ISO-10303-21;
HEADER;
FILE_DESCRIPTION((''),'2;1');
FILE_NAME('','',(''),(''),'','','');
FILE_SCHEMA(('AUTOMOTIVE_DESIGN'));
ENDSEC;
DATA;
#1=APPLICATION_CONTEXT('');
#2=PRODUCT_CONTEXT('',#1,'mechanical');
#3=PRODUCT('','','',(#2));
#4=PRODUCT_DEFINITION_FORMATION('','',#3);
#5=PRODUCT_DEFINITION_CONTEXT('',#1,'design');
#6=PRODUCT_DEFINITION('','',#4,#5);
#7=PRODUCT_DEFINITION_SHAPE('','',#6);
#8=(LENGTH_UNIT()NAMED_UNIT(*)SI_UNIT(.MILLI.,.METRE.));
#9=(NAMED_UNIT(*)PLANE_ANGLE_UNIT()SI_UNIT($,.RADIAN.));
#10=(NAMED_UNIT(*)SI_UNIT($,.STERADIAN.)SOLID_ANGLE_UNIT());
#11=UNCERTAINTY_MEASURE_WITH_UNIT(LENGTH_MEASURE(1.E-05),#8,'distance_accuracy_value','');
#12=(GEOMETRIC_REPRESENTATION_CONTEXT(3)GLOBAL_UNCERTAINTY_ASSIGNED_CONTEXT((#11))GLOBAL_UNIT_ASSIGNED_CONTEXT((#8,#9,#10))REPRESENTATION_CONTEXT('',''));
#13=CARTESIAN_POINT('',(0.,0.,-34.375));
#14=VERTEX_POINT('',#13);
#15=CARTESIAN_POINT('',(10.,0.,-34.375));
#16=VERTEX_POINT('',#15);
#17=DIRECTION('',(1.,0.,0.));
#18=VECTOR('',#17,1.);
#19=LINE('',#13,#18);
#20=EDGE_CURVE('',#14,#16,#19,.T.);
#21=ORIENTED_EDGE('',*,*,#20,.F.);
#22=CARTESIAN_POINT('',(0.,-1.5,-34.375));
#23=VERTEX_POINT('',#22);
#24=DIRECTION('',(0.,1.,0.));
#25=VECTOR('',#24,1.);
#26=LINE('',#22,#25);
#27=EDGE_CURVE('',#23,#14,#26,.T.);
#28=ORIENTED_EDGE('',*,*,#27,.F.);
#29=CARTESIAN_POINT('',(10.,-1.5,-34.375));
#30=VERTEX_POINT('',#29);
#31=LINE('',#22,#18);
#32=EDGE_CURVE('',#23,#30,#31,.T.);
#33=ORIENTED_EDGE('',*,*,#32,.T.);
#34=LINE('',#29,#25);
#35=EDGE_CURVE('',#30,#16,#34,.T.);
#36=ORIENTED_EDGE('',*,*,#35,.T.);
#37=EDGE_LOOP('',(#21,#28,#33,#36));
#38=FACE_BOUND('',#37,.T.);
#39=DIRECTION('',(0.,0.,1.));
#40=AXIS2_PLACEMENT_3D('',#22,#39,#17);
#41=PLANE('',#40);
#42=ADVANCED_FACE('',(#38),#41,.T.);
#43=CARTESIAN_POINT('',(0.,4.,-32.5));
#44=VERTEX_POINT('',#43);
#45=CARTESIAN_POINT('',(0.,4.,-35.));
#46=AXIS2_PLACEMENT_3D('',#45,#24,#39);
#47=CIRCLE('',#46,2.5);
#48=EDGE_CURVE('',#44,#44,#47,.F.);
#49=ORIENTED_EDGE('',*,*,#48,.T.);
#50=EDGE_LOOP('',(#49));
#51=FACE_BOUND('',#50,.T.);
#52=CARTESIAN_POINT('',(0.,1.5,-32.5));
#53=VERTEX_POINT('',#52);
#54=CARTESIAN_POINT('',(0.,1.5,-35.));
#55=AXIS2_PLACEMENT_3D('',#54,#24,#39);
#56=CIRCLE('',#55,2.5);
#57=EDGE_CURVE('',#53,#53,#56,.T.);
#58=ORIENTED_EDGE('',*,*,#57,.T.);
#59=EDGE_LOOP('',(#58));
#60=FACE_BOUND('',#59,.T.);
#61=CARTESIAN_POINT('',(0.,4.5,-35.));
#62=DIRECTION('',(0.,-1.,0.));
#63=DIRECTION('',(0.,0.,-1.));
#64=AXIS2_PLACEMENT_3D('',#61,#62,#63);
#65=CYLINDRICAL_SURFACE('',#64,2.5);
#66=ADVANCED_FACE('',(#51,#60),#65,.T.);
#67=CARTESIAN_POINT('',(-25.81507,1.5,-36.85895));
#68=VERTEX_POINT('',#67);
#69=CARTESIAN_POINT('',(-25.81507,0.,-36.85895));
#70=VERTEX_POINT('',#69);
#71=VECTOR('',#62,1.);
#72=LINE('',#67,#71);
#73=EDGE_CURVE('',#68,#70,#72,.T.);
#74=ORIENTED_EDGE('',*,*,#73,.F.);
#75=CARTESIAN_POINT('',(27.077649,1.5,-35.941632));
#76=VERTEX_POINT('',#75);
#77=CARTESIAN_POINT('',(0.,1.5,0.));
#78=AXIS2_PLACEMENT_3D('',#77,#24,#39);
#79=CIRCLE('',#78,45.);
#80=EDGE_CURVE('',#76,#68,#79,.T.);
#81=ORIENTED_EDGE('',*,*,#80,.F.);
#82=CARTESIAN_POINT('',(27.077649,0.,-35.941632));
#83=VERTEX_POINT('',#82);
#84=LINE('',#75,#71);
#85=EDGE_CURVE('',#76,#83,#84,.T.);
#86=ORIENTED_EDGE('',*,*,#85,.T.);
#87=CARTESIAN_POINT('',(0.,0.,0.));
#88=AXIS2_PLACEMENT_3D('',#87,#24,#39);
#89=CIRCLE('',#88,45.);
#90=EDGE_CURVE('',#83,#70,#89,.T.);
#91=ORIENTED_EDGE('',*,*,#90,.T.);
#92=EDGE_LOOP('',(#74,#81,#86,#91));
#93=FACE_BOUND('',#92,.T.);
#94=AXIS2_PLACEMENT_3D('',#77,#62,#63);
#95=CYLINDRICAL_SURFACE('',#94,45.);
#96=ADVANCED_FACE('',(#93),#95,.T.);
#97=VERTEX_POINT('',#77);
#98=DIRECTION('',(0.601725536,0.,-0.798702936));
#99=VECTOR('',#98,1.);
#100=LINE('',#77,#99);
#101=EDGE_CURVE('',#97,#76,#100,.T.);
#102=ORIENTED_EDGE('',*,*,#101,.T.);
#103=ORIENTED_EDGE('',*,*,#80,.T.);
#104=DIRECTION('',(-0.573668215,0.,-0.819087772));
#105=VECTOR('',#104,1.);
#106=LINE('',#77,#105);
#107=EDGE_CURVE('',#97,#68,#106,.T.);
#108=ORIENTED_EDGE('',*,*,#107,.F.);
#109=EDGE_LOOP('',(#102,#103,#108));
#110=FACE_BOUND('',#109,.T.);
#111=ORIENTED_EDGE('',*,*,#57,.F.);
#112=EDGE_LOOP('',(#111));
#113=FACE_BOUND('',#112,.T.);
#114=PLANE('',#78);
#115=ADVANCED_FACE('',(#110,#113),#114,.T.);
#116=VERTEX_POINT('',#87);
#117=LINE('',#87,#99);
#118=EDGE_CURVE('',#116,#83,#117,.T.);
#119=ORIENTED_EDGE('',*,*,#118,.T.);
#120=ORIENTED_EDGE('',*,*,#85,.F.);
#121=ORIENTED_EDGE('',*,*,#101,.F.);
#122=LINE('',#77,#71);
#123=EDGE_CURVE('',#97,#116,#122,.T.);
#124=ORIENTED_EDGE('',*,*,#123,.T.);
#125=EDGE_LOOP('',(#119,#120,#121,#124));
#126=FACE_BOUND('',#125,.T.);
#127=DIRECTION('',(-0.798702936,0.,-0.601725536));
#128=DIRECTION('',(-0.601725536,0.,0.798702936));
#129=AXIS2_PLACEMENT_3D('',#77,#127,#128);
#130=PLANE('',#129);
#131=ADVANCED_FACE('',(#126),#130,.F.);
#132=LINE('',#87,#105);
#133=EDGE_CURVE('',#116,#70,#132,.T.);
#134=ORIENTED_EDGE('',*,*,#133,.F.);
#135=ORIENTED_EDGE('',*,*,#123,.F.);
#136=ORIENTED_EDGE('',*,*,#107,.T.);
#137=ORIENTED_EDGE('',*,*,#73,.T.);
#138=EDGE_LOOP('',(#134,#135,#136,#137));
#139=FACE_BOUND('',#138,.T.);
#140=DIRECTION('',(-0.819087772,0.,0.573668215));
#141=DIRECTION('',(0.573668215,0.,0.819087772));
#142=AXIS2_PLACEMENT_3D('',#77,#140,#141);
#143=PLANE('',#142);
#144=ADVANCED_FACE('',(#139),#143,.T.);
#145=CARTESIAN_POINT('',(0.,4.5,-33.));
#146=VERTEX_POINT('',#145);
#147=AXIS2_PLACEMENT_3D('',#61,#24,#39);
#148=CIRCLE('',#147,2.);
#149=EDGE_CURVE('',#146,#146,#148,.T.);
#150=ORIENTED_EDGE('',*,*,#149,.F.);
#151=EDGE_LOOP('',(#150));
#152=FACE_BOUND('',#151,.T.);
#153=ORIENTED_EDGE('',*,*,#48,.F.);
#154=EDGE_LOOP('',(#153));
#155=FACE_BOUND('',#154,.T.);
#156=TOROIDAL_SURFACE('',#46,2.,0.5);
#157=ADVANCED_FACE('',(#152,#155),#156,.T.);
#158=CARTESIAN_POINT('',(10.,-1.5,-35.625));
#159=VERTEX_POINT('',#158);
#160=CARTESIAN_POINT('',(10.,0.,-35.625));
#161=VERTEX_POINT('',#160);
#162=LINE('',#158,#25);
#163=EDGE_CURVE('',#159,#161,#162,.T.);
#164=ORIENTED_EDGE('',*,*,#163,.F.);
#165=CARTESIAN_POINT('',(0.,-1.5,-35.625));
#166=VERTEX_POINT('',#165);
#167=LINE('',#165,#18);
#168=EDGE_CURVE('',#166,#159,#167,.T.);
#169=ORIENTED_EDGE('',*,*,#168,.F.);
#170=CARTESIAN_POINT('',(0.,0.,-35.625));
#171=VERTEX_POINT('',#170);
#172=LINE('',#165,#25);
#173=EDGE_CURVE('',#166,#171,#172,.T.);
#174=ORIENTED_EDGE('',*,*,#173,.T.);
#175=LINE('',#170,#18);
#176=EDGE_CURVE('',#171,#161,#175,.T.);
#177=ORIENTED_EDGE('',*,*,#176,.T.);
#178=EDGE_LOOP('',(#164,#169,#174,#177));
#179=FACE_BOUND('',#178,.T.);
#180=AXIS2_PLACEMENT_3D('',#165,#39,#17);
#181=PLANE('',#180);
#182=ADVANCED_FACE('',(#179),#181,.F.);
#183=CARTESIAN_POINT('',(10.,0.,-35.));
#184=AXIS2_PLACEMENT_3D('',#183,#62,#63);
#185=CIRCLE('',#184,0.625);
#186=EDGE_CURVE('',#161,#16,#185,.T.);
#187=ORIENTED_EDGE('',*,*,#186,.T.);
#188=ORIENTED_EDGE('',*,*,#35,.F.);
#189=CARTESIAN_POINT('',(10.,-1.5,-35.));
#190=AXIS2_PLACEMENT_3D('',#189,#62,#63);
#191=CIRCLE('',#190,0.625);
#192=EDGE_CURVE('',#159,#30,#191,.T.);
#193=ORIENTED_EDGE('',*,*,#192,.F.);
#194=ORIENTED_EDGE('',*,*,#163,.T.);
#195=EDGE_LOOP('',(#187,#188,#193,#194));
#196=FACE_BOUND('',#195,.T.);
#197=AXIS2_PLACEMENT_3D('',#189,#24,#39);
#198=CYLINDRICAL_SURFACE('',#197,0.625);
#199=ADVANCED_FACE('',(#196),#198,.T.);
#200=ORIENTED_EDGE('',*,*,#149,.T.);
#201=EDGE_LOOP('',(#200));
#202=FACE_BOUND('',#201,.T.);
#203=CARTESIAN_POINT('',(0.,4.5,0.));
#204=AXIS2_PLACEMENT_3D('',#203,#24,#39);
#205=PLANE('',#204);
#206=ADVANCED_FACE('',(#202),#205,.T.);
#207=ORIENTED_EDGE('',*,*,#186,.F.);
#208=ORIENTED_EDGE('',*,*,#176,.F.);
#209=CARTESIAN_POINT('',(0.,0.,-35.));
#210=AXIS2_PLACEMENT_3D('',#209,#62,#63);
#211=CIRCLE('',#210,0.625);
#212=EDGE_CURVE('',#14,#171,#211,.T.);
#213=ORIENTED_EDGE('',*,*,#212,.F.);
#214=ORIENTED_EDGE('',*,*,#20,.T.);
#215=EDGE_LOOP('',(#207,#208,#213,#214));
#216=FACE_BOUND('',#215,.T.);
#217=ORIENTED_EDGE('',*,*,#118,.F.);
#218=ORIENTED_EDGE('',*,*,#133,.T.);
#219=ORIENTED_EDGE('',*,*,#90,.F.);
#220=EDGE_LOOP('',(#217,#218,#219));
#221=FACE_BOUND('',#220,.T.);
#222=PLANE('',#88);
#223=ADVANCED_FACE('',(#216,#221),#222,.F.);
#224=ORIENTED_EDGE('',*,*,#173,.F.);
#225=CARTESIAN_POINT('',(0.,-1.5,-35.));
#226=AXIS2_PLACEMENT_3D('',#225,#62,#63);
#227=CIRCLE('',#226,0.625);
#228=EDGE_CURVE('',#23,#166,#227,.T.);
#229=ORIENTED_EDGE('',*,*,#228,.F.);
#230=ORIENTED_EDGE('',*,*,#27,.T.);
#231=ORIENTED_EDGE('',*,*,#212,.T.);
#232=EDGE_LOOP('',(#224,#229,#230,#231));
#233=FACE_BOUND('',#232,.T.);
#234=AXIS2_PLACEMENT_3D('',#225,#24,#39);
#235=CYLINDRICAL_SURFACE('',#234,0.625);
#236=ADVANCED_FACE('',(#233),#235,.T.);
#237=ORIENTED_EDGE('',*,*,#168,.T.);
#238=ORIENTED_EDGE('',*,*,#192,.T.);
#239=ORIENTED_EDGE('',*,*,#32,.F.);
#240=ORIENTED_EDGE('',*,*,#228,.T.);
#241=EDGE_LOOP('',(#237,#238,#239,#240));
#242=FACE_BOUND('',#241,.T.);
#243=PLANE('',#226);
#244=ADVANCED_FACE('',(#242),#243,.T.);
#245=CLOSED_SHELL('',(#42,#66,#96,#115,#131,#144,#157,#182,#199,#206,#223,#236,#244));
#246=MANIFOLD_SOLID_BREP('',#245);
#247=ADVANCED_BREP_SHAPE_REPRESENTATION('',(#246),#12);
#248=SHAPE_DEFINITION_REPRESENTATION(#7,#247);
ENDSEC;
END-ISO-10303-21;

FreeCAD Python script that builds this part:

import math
import FreeCAD as App
import Part
import Sketcher

V = App.Vector


def edges_at(feature, points):
    """Names of the edges that pass closest to the given points."""
    edges = feature.Shape.Edges
    near = lambda p: min(range(len(edges)), key=lambda i: edges[i].distToShape(Part.Vertex(*p))[0])
    return sorted({f"Edge{near(p) + 1}" for p in points})

doc = App.newDocument("Part")
params = doc.addObject("Spreadsheet::Sheet", "Params")
for row, (alias, value) in enumerate([
    ("sketch1_radius", "45 mm"),
    ("pad1_length", "1.5 mm"),
    ("sketch2_width", "10 mm"),
    ("pad2_length", "1.5 mm"),
    ("sketch3_diameter", "5 mm"),
    ("pad3_length", "3 mm"),
    ("fillet_radius", "0.5 mm"),
], start=1):
    params.set(f"A{row}", alias)
    params.set(f"B{row}", "=" + value)
    params.setAlias(f"B{row}", alias)

body = doc.addObject("PartDesign::Body", "Body")

# Sketch on XZ plane
sketch1 = body.newObject("Sketcher::SketchObject", "Sketch")
sketch1.AttachmentSupport = (doc.getObject("XZ_Plane"), [""])
sketch1.MapMode = "FlatFace"
sketch1.addGeometry(Part.LineSegment(V(-26, -37, 0), V(0, 0, 0)), False)
sketch1.addGeometry(Part.LineSegment(V(0, 0, 0), V(27, -36, 0)), False)
sketch1.addGeometry(Part.ArcOfCircle(Part.Circle(V(0, 0, 0), V(0, 0, 1), 45), math.radians(-125), math.radians(-53)), False)
sketch1.addConstraint(Sketcher.Constraint("Coincident", 0, 2, 1, 1))
sketch1.addConstraint(Sketcher.Constraint("Coincident", 1, 2, 2, 2))
sketch1.addConstraint(Sketcher.Constraint("Coincident", 2, 1, 0, 1))
sketch1.addConstraint(Sketcher.Constraint("Coincident", 2, 3, -1, 1))
sketch1.addConstraint(Sketcher.Constraint("Coincident", 0, 2, -1, 1))
sketch1.addConstraint(Sketcher.Constraint("Radius", 2, 45.0))
sketch1.addConstraint(Sketcher.Constraint("DistanceX", -1, 1, 1, 2, 27.077649))
sketch1.addConstraint(Sketcher.Constraint("DistanceX", 2, 1, -1, 1, 25.81507))
sketch1.setExpression("Constraints[5]", "Params.sketch1_radius")
pad1 = body.newObject("PartDesign::Pad", "Pad")
pad1.Profile = sketch1
pad1.setExpression("Length", "Params.pad1_length")
pad1.Reversed = True

# Sketch on XZ plane
sketch2 = body.newObject("Sketcher::SketchObject", "Sketch001")
sketch2.AttachmentSupport = (doc.getObject("XZ_Plane"), [""])
sketch2.MapMode = "FlatFace"
sketch2.addGeometry(Part.LineSegment(V(10, -34.4, 0), V(0, -34.4, 0)), False)
sketch2.addGeometry(Part.ArcOfCircle(Part.Circle(V(0, -35, 0), V(0, 0, 1), 0.6), math.radians(90), math.radians(270)), False)
sketch2.addGeometry(Part.LineSegment(V(0, -35.6, 0), V(10, -35.6, 0)), False)
sketch2.addGeometry(Part.ArcOfCircle(Part.Circle(V(10, -35, 0), V(0, 0, 1), 0.6), math.radians(-90), math.radians(90)), False)
sketch2.addConstraint(Sketcher.Constraint("Tangent", 0, 2, 1, 1))
sketch2.addConstraint(Sketcher.Constraint("Tangent", 1, 2, 2, 1))
sketch2.addConstraint(Sketcher.Constraint("Tangent", 2, 2, 3, 1))
sketch2.addConstraint(Sketcher.Constraint("Tangent", 3, 2, 0, 1))
sketch2.addConstraint(Sketcher.Constraint("Horizontal", 0))
sketch2.addConstraint(Sketcher.Constraint("Horizontal", 2))
sketch2.addConstraint(Sketcher.Constraint("PointOnObject", 1, 3, -2))
sketch2.addConstraint(Sketcher.Constraint("DistanceX", 0, 2, 0, 1, 10.0))
sketch2.addConstraint(Sketcher.Constraint("DistanceY", 1, 3, -1, 1, 35.0))
sketch2.addConstraint(Sketcher.Constraint("Radius", 1, 0.625))
sketch2.setExpression("Constraints[7]", "Params.sketch2_width")
pad2 = body.newObject("PartDesign::Pad", "Pad001")
pad2.Profile = sketch2
pad2.setExpression("Length", "Params.pad2_length")

# Sketch on XZ plane
sketch3 = body.newObject("Sketcher::SketchObject", "Sketch002")
sketch3.AttachmentSupport = (doc.getObject("XZ_Plane"), [""])
sketch3.MapMode = "FlatFace"
sketch3.AttachmentOffset = App.Placement(V(0, 0, -1.5), App.Rotation())
sketch3.addGeometry(Part.Circle(V(0, -35, 0), V(0, 0, 1), 2.5), False)
sketch3.addConstraint(Sketcher.Constraint("PointOnObject", 0, 3, -2))
sketch3.addConstraint(Sketcher.Constraint("Diameter", 0, 5.0))
sketch3.addConstraint(Sketcher.Constraint("DistanceY", 0, 3, -1, 1, 35.0))
sketch3.setExpression("Constraints[1]", "Params.sketch3_diameter")
pad3 = body.newObject("PartDesign::Pad", "Pad002")
pad3.Profile = sketch3
pad3.setExpression("Length", "Params.pad3_length")
pad3.Reversed = True
doc.recompute()

fillet = body.newObject("PartDesign::Fillet", "Fillet")
fillet.Base = (pad3, edges_at(pad3, [(-2.5, 4.5, -35)]))
fillet.setExpression("Radius", "Params.fillet_radius")

doc.recompute()
